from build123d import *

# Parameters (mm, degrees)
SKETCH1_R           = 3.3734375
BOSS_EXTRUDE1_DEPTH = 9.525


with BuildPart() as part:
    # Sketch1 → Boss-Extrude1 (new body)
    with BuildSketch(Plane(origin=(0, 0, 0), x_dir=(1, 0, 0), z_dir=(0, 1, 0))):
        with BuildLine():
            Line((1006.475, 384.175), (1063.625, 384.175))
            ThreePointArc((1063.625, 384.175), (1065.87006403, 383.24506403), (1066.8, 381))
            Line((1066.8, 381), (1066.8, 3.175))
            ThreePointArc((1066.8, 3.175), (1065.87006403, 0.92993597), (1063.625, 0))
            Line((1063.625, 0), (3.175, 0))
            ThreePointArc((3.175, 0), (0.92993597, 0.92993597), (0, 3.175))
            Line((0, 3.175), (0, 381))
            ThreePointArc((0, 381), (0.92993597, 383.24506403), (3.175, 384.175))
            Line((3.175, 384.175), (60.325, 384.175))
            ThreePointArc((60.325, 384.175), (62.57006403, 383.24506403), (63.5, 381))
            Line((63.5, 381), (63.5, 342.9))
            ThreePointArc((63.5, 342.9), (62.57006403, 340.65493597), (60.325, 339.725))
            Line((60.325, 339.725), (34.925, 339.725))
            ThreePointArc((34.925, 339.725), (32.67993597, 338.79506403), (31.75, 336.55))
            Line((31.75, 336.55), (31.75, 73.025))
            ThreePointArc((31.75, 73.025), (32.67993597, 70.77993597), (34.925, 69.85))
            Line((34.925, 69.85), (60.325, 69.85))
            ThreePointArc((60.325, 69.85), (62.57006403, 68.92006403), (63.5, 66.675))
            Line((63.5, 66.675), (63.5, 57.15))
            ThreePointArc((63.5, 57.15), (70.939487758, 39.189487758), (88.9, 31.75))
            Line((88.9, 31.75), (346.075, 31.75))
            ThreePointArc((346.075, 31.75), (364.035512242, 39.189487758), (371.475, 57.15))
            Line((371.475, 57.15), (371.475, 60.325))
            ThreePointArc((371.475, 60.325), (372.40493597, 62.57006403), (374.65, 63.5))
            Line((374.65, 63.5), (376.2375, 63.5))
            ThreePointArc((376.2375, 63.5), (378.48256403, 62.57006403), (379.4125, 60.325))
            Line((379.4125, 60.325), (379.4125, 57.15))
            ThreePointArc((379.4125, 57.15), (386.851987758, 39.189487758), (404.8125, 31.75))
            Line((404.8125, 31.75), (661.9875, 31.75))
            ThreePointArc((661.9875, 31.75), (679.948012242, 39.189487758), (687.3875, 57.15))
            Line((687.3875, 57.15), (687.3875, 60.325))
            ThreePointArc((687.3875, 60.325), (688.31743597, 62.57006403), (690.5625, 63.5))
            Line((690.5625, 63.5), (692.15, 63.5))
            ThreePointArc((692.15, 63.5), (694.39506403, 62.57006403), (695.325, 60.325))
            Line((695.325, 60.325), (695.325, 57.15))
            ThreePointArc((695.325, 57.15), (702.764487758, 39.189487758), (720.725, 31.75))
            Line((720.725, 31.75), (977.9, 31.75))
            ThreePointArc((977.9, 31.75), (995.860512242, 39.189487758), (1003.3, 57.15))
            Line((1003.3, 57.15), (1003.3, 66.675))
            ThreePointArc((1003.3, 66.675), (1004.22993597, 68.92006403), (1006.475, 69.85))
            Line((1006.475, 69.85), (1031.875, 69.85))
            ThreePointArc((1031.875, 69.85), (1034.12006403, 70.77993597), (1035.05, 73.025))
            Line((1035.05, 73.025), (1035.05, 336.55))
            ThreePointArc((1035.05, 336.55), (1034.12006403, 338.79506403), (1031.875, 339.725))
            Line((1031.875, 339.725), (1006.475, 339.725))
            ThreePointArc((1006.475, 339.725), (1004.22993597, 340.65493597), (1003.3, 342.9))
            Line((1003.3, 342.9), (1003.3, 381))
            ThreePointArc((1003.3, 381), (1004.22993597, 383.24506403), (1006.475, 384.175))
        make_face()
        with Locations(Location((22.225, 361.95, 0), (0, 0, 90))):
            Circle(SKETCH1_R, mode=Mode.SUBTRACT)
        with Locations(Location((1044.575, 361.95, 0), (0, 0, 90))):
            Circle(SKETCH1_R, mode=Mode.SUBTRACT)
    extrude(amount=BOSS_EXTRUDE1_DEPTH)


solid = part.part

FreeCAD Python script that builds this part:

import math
import FreeCAD as App
import Part
import Sketcher

V = App.Vector
Q = App.Units.Quantity

doc = App.newDocument("Part")
body = doc.addObject("PartDesign::Body", "Body")

# Sketch on XZ plane
sketch1 = body.newObject("Sketcher::SketchObject", "Sketch")
sketch1.AttachmentSupport = (doc.getObject("XZ_Plane"), [""])
sketch1.MapMode = "FlatFace"
sketch1.addGeometry(Part.LineSegment(V(1063.6, -384.2, 0), V(1006.5, -384.2, 0)), False)
sketch1.addGeometry(Part.ArcOfCircle(Part.Circle(V(1006.5, -381, 0), V(0, 0, 1), 3.2), math.radians(-180), math.radians(-90)), False)
sketch1.addGeometry(Part.LineSegment(V(1003.3, -381, 0), V(1003.3, -342.9, 0)), False)
sketch1.addGeometry(Part.ArcOfCircle(Part.Circle(V(1006.5, -342.9, 0), V(0, 0, 1), 3.2), math.radians(90), math.radians(180)), False)
sketch1.addGeometry(Part.LineSegment(V(1006.5, -339.7, 0), V(1031.9, -339.7, 0)), False)
sketch1.addGeometry(Part.ArcOfCircle(Part.Circle(V(1031.9, -336.5, 0), V(0, 0, 1), 3.2), math.radians(-90), math.radians(0)), False)
sketch1.addGeometry(Part.LineSegment(V(1035, -336.6, 0), V(1035, -73, 0)), False)
sketch1.addGeometry(Part.ArcOfCircle(Part.Circle(V(1031.9, -73, 0), V(0, 0, 1), 3.2), math.radians(0), math.radians(90)), False)
sketch1.addGeometry(Part.LineSegment(V(1031.9, -69.8, 0), V(1006.5, -69.8, 0)), False)
sketch1.addGeometry(Part.ArcOfCircle(Part.Circle(V(1006.5, -66.7, 0), V(0, 0, 1), 3.2), math.radians(-180), math.radians(-90)), False)
sketch1.addGeometry(Part.LineSegment(V(1003.3, -66.7, 0), V(1003.3, -57.1, 0)), False)
sketch1.addGeometry(Part.ArcOfCircle(Part.Circle(V(977.9, -57.1, 0), V(0, 0, 1), 25.4), math.radians(0), math.radians(90)), False)
sketch1.addGeometry(Part.LineSegment(V(977.9, -31.8, 0), V(720.7, -31.8, 0)), False)
sketch1.addGeometry(Part.ArcOfCircle(Part.Circle(V(720.7, -57.1, 0), V(0, 0, 1), 25.4), math.radians(90), math.radians(180)), False)
sketch1.addGeometry(Part.LineSegment(V(695.3, -57.1, 0), V(695.3, -60.3, 0)), False)
sketch1.addGeometry(Part.ArcOfCircle(Part.Circle(V(692.1, -60.3, 0), V(0, 0, 1), 3.2), math.radians(-90), math.radians(0)), False)
sketch1.addGeometry(Part.LineSegment(V(692.1, -63.5, 0), V(690.6, -63.5, 0)), False)
sketch1.addGeometry(Part.ArcOfCircle(Part.Circle(V(690.6, -60.3, 0), V(0, 0, 1), 3.2), math.radians(-180), math.radians(-90)), False)
sketch1.addGeometry(Part.LineSegment(V(687.4, -60.3, 0), V(687.4, -57.1, 0)), False)
sketch1.addGeometry(Part.ArcOfCircle(Part.Circle(V(662, -57.1, 0), V(0, 0, 1), 25.4), math.radians(0), math.radians(90)), False)
sketch1.addGeometry(Part.LineSegment(V(662, -31.8, 0), V(404.8, -31.8, 0)), False)
sketch1.addGeometry(Part.ArcOfCircle(Part.Circle(V(404.8, -57.1, 0), V(0, 0, 1), 25.4), math.radians(90), math.radians(180)), False)
sketch1.addGeometry(Part.LineSegment(V(379.4, -57.1, 0), V(379.4, -60.3, 0)), False)
sketch1.addGeometry(Part.ArcOfCircle(Part.Circle(V(376.2, -60.3, 0), V(0, 0, 1), 3.2), math.radians(-90), math.radians(0)), False)
sketch1.addGeometry(Part.LineSegment(V(376.2, -63.5, 0), V(374.6, -63.5, 0)), False)
sketch1.addGeometry(Part.ArcOfCircle(Part.Circle(V(374.7, -60.3, 0), V(0, 0, 1), 3.2), math.radians(-180), math.radians(-90)), False)
sketch1.addGeometry(Part.LineSegment(V(371.5, -60.3, 0), V(371.5, -57.1, 0)), False)
sketch1.addGeometry(Part.ArcOfCircle(Part.Circle(V(346.1, -57.1, 0), V(0, 0, 1), 25.4), math.radians(0), math.radians(90)), False)
sketch1.addGeometry(Part.LineSegment(V(346.1, -31.8, 0), V(88.9, -31.8, 0)), False)
sketch1.addGeometry(Part.ArcOfCircle(Part.Circle(V(88.9, -57.1, 0), V(0, 0, 1), 25.4), math.radians(90), math.radians(180)), False)
sketch1.addGeometry(Part.LineSegment(V(63.5, -57.1, 0), V(63.5, -66.7, 0)), False)
sketch1.addGeometry(Part.ArcOfCircle(Part.Circle(V(60.3, -66.7, 0), V(0, 0, 1), 3.2), math.radians(-90), math.radians(0)), False)
sketch1.addGeometry(Part.LineSegment(V(60.3, -69.8, 0), V(34.9, -69.8, 0)), False)
sketch1.addGeometry(Part.ArcOfCircle(Part.Circle(V(34.9, -73, 0), V(0, 0, 1), 3.2), math.radians(90), math.radians(180)), False)
sketch1.addGeometry(Part.LineSegment(V(31.8, -73, 0), V(31.8, -336.6, 0)), False)
sketch1.addGeometry(Part.ArcOfCircle(Part.Circle(V(34.9, -336.5, 0), V(0, 0, 1), 3.2), math.radians(-180), math.radians(-90)), False)
sketch1.addGeometry(Part.LineSegment(V(34.9, -339.7, 0), V(60.3, -339.7, 0)), False)
sketch1.addGeometry(Part.ArcOfCircle(Part.Circle(V(60.3, -342.9, 0), V(0, 0, 1), 3.2), math.radians(0), math.radians(90)), False)
sketch1.addGeometry(Part.LineSegment(V(63.5, -342.9, 0), V(63.5, -381, 0)), False)
sketch1.addGeometry(Part.ArcOfCircle(Part.Circle(V(60.3, -381, 0), V(0, 0, 1), 3.2), math.radians(-90), math.radians(0)), False)
sketch1.addGeometry(Part.LineSegment(V(60.3, -384.2, 0), V(3.2, -384.2, 0)), False)
sketch1.addGeometry(Part.ArcOfCircle(Part.Circle(V(3.2, -381, 0), V(0, 0, 1), 3.2), math.radians(-180), math.radians(-90)), False)
sketch1.addGeometry(Part.LineSegment(V(0, -381, 0), V(0, -3.2, 0)), False)
sketch1.addGeometry(Part.ArcOfCircle(Part.Circle(V(3.2, -3.2, 0), V(0, 0, 1), 3.2), math.radians(90), math.radians(180)), False)
sketch1.addGeometry(Part.LineSegment(V(3.2, 0, 0), V(1063.6, 0, 0)), False)
sketch1.addGeometry(Part.ArcOfCircle(Part.Circle(V(1063.6, -3.2, 0), V(0, 0, 1), 3.2), math.radians(0), math.radians(90)), False)
sketch1.addGeometry(Part.LineSegment(V(1066.8, -3.2, 0), V(1066.8, -381, 0)), False)
sketch1.addGeometry(Part.ArcOfCircle(Part.Circle(V(1063.6, -381, 0), V(0, 0, 1), 3.2), math.radians(-90), math.radians(0)), False)
sketch1.addGeometry(Part.Circle(V(1044.6, -361.9, 0), V(0, 0, 1), 3.4), False)
sketch1.addGeometry(Part.Circle(V(22.2, -361.9, 0), V(0, 0, 1), 3.4), False)
sketch1.addConstraint(Sketcher.Constraint("Tangent", 0, 2, 1, 2))
sketch1.addConstraint(Sketcher.Constraint("Tangent", 1, 1, 2, 1))
sketch1.addConstraint(Sketcher.Constraint("Tangent", 2, 2, 3, 2))
sketch1.addConstraint(Sketcher.Constraint("Tangent", 3, 1, 4, 1))
sketch1.addConstraint(Sketcher.Constraint("Tangent", 4, 2, 5, 1))
sketch1.addConstraint(Sketcher.Constraint("Tangent", 5, 2, 6, 1))
sketch1.addConstraint(Sketcher.Constraint("Tangent", 6, 2, 7, 1))
sketch1.addConstraint(Sketcher.Constraint("Tangent", 7, 2, 8, 1))
sketch1.addConstraint(Sketcher.Constraint("Tangent", 8, 2, 9, 2))
sketch1.addConstraint(Sketcher.Constraint("Tangent", 9, 1, 10, 1))
sketch1.addConstraint(Sketcher.Constraint("Tangent", 10, 2, 11, 1))
sketch1.addConstraint(Sketcher.Constraint("Tangent", 11, 2, 12, 1))
sketch1.addConstraint(Sketcher.Constraint("Tangent", 12, 2, 13, 1))
sketch1.addConstraint(Sketcher.Constraint("Tangent", 13, 2, 14, 1))
sketch1.addConstraint(Sketcher.Constraint("Tangent", 14, 2, 15, 2))
sketch1.addConstraint(Sketcher.Constraint("Tangent", 15, 1, 16, 1))
sketch1.addConstraint(Sketcher.Constraint("Tangent", 16, 2, 17, 2))
sketch1.addConstraint(Sketcher.Constraint("Tangent", 17, 1, 18, 1))
sketch1.addConstraint(Sketcher.Constraint("Tangent", 18, 2, 19, 1))
sketch1.addConstraint(Sketcher.Constraint("Tangent", 19, 2, 20, 1))
sketch1.addConstraint(Sketcher.Constraint("Tangent", 20, 2, 21, 1))
sketch1.addConstraint(Sketcher.Constraint("Tangent", 21, 2, 22, 1))
sketch1.addConstraint(Sketcher.Constraint("Tangent", 22, 2, 23, 2))
sketch1.addConstraint(Sketcher.Constraint("Tangent", 23, 1, 24, 1))
sketch1.addConstraint(Sketcher.Constraint("Tangent", 24, 2, 25, 2))
sketch1.addConstraint(Sketcher.Constraint("Tangent", 25, 1, 26, 1))
sketch1.addConstraint(Sketcher.Constraint("Tangent", 26, 2, 27, 1))
sketch1.addConstraint(Sketcher.Constraint("Tangent", 27, 2, 28, 1))
sketch1.addConstraint(Sketcher.Constraint("Tangent", 28, 2, 29, 1))
sketch1.addConstraint(Sketcher.Constraint("Tangent", 29, 2, 30, 1))
sketch1.addConstraint(Sketcher.Constraint("Tangent", 30, 2, 31, 2))
sketch1.addConstraint(Sketcher.Constraint("Tangent", 31, 1, 32, 1))
sketch1.addConstraint(Sketcher.Constraint("Tangent", 32, 2, 33, 1))
sketch1.addConstraint(Sketcher.Constraint("Tangent", 33, 2, 34, 1))
sketch1.addConstraint(Sketcher.Constraint("Tangent", 34, 2, 35, 1))
sketch1.addConstraint(Sketcher.Constraint("Tangent", 35, 2, 36, 1))
sketch1.addConstraint(Sketcher.Constraint("Tangent", 36, 2, 37, 2))
sketch1.addConstraint(Sketcher.Constraint("Tangent", 37, 1, 38, 1))
sketch1.addConstraint(Sketcher.Constraint("Tangent", 38, 2, 39, 2))
sketch1.addConstraint(Sketcher.Constraint("Tangent", 39, 1, 40, 1))
sketch1.addConstraint(Sketcher.Constraint("Tangent", 40, 2, 41, 2))
sketch1.addConstraint(Sketcher.Constraint("Tangent", 41, 1, 42, 1))
sketch1.addConstraint(Sketcher.Constraint("Tangent", 42, 2, 43, 2))
sketch1.addConstraint(Sketcher.Constraint("Tangent", 43, 1, 44, 1))
sketch1.addConstraint(Sketcher.Constraint("Tangent", 44, 2, 45, 2))
sketch1.addConstraint(Sketcher.Constraint("Tangent", 45, 1, 46, 1))
sketch1.addConstraint(Sketcher.Constraint("Tangent", 46, 2, 47, 2))
sketch1.addConstraint(Sketcher.Constraint("Tangent", 47, 1, 0, 1))
sketch1.addConstraint(Sketcher.Constraint("Horizontal", 0))
sketch1.addConstraint(Sketcher.Constraint("Vertical", 2))
sketch1.addConstraint(Sketcher.Constraint("Horizontal", 4))
sketch1.addConstraint(Sketcher.Constraint("Vertical", 6))
sketch1.addConstraint(Sketcher.Constraint("Horizontal", 8))
sketch1.addConstraint(Sketcher.Constraint("Vertical", 10))
sketch1.addConstraint(Sketcher.Constraint("Horizontal", 12))
sketch1.addConstraint(Sketcher.Constraint("Vertical", 14))
sketch1.addConstraint(Sketcher.Constraint("Horizontal", 16))
sketch1.addConstraint(Sketcher.Constraint("Vertical", 18))
sketch1.addConstraint(Sketcher.Constraint("Horizontal", 20))
sketch1.addConstraint(Sketcher.Constraint("Vertical", 22))
sketch1.addConstraint(Sketcher.Constraint("Horizontal", 24))
sketch1.addConstraint(Sketcher.Constraint("Vertical", 26))
sketch1.addConstraint(Sketcher.Constraint("Horizontal", 28))
sketch1.addConstraint(Sketcher.Constraint("Vertical", 30))
sketch1.addConstraint(Sketcher.Constraint("Horizontal", 32))
sketch1.addConstraint(Sketcher.Constraint("Vertical", 34))
sketch1.addConstraint(Sketcher.Constraint("Horizontal", 36))
sketch1.addConstraint(Sketcher.Constraint("Vertical", 38))
sketch1.addConstraint(Sketcher.Constraint("Horizontal", 40))
sketch1.addConstraint(Sketcher.Constraint("Vertical", 42))
sketch1.addConstraint(Sketcher.Constraint("Horizontal", 44))
sketch1.addConstraint(Sketcher.Constraint("Vertical", 46))
sketch1.addConstraint(Sketcher.Constraint("Equal", 1, 3))
sketch1.addConstraint(Sketcher.Constraint("Equal", 3, 5))
sketch1.addConstraint(Sketcher.Constraint("Equal", 5, 7))
sketch1.addConstraint(Sketcher.Constraint("Equal", 7, 9))
sketch1.addConstraint(Sketcher.Constraint("Equal", 11, 13))
sketch1.addConstraint(Sketcher.Constraint("Equal", 9, 15))
sketch1.addConstraint(Sketcher.Constraint("Equal", 15, 17))
sketch1.addConstraint(Sketcher.Constraint("Equal", 13, 19))
sketch1.addConstraint(Sketcher.Constraint("Equal", 19, 21))
sketch1.addConstraint(Sketcher.Constraint("Equal", 17, 23))
sketch1.addConstraint(Sketcher.Constraint("Equal", 23, 25))
sketch1.addConstraint(Sketcher.Constraint("Equal", 21, 27))
sketch1.addConstraint(Sketcher.Constraint("Equal", 27, 29))
sketch1.addConstraint(Sketcher.Constraint("Equal", 25, 31))
sketch1.addConstraint(Sketcher.Constraint("Equal", 31, 33))
sketch1.addConstraint(Sketcher.Constraint("Equal", 33, 35))
sketch1.addConstraint(Sketcher.Constraint("Equal", 35, 37))
sketch1.addConstraint(Sketcher.Constraint("Equal", 37, 39))
sketch1.addConstraint(Sketcher.Constraint("Equal", 39, 41))
sketch1.addConstraint(Sketcher.Constraint("Equal", 41, 43))
sketch1.addConstraint(Sketcher.Constraint("Equal", 43, 45))
sketch1.addConstraint(Sketcher.Constraint("Equal", 45, 47))
sketch1.addConstraint(Sketcher.Constraint("Equal", 48, 49))
sketch1.addConstraint(Sketcher.Constraint("PointOnObject", 41, 1, -2))
sketch1.addConstraint(Sketcher.Constraint("PointOnObject", 43, 1, -1))
sketch1.addConstraint(Sketcher.Constraint("Horizontal", 13, 3, 19, 3))
sketch1.addConstraint(Sketcher.Constraint("Horizontal", 17, 3, 23, 3))
sketch1.addConstraint(Sketcher.Constraint("Horizontal", 21, 3, 27, 3))
sketch1.addConstraint(Sketcher.Constraint("Horizontal", 9, 3, 31, 3))
sketch1.addConstraint(Sketcher.Constraint("Horizontal", 5, 3, 35, 3))
sketch1.addConstraint(Sketcher.Constraint("Horizontal", 1, 3, 39, 3))
sketch1.addConstraint(Sketcher.Constraint("Horizontal", 48, 3, 49, 3))
sketch1.addConstraint(Sketcher.Constraint("Vertical", 3, 3, 9, 3))
sketch1.addConstraint(Sketcher.Constraint("Vertical", 31, 3, 37, 3))
sketch1.addConstraint(Sketcher.Constraint("Equal", 12, 20))
sketch1.addConstraint(Sketcher.Constraint("Equal", 16, 24))
sketch1.addConstraint(Sketcher.Constraint("Equal", 20, 28))
sketch1.addConstraint(Sketcher.Constraint("Equal", 8, 32))
sketch1.addConstraint(Sketcher.Constraint("Equal", 0, 40))
sketch1.addConstraint(Sketcher.Constraint("Radius", 11, Q("1 in")))
sketch1.addConstraint(Sketcher.Constraint("DistanceX", 4, 1, 4, 2, Q("1 in")))
sketch1.addConstraint(Sketcher.Constraint("Diameter", 48, Q("0.265625 in")))
sketch1.addConstraint(Sketcher.Constraint("DistanceY", 2, 1, 2, 2, Q("1.5 in")))
sketch1.addConstraint(Sketcher.Constraint("DistanceY", 1, 3, -1, 1, Q("15 in")))
sketch1.addConstraint(Sketcher.Constraint("DistanceX", -1, 1, 45, 1, Q("42 in")))
sketch1.addConstraint(Sketcher.Constraint("Radius", 1, Q("0.125 in")))
sketch1.addConstraint(Sketcher.Constraint("DistanceX", 0, 2, 0, 1, Q("2.25 in")))
sketch1.addConstraint(Sketcher.Constraint("DistanceY", 15, 1, -1, 1, Q("2.5 in")))
sketch1.addConstraint(Sketcher.Constraint("DistanceX", 12, 2, 12, 1, Q("10.125 in")))
sketch1.addConstraint(Sketcher.Constraint("DistanceY", 6, 1, 6, 2, Q("10.375 in")))
sketch1.addConstraint(Sketcher.Constraint("DistanceY", 10, 1, 10, 2, Q("0.375 in")))
sketch1.addConstraint(Sketcher.Constraint("DistanceY", 48, 3, -1, 1, Q("14.25 in")))
sketch1.addConstraint(Sketcher.Constraint("DistanceX", -1, 1, 48, 3, Q("41.125 in")))
sketch1.addConstraint(Sketcher.Constraint("DistanceX", -1, 1, 49, 3, Q("0.875 in")))
pad1 = body.newObject("PartDesign::Pad", "Pad")
pad1.Profile = sketch1
pad1.Length = Q("0.375 in")
pad1.Reversed = True

doc.recompute()
